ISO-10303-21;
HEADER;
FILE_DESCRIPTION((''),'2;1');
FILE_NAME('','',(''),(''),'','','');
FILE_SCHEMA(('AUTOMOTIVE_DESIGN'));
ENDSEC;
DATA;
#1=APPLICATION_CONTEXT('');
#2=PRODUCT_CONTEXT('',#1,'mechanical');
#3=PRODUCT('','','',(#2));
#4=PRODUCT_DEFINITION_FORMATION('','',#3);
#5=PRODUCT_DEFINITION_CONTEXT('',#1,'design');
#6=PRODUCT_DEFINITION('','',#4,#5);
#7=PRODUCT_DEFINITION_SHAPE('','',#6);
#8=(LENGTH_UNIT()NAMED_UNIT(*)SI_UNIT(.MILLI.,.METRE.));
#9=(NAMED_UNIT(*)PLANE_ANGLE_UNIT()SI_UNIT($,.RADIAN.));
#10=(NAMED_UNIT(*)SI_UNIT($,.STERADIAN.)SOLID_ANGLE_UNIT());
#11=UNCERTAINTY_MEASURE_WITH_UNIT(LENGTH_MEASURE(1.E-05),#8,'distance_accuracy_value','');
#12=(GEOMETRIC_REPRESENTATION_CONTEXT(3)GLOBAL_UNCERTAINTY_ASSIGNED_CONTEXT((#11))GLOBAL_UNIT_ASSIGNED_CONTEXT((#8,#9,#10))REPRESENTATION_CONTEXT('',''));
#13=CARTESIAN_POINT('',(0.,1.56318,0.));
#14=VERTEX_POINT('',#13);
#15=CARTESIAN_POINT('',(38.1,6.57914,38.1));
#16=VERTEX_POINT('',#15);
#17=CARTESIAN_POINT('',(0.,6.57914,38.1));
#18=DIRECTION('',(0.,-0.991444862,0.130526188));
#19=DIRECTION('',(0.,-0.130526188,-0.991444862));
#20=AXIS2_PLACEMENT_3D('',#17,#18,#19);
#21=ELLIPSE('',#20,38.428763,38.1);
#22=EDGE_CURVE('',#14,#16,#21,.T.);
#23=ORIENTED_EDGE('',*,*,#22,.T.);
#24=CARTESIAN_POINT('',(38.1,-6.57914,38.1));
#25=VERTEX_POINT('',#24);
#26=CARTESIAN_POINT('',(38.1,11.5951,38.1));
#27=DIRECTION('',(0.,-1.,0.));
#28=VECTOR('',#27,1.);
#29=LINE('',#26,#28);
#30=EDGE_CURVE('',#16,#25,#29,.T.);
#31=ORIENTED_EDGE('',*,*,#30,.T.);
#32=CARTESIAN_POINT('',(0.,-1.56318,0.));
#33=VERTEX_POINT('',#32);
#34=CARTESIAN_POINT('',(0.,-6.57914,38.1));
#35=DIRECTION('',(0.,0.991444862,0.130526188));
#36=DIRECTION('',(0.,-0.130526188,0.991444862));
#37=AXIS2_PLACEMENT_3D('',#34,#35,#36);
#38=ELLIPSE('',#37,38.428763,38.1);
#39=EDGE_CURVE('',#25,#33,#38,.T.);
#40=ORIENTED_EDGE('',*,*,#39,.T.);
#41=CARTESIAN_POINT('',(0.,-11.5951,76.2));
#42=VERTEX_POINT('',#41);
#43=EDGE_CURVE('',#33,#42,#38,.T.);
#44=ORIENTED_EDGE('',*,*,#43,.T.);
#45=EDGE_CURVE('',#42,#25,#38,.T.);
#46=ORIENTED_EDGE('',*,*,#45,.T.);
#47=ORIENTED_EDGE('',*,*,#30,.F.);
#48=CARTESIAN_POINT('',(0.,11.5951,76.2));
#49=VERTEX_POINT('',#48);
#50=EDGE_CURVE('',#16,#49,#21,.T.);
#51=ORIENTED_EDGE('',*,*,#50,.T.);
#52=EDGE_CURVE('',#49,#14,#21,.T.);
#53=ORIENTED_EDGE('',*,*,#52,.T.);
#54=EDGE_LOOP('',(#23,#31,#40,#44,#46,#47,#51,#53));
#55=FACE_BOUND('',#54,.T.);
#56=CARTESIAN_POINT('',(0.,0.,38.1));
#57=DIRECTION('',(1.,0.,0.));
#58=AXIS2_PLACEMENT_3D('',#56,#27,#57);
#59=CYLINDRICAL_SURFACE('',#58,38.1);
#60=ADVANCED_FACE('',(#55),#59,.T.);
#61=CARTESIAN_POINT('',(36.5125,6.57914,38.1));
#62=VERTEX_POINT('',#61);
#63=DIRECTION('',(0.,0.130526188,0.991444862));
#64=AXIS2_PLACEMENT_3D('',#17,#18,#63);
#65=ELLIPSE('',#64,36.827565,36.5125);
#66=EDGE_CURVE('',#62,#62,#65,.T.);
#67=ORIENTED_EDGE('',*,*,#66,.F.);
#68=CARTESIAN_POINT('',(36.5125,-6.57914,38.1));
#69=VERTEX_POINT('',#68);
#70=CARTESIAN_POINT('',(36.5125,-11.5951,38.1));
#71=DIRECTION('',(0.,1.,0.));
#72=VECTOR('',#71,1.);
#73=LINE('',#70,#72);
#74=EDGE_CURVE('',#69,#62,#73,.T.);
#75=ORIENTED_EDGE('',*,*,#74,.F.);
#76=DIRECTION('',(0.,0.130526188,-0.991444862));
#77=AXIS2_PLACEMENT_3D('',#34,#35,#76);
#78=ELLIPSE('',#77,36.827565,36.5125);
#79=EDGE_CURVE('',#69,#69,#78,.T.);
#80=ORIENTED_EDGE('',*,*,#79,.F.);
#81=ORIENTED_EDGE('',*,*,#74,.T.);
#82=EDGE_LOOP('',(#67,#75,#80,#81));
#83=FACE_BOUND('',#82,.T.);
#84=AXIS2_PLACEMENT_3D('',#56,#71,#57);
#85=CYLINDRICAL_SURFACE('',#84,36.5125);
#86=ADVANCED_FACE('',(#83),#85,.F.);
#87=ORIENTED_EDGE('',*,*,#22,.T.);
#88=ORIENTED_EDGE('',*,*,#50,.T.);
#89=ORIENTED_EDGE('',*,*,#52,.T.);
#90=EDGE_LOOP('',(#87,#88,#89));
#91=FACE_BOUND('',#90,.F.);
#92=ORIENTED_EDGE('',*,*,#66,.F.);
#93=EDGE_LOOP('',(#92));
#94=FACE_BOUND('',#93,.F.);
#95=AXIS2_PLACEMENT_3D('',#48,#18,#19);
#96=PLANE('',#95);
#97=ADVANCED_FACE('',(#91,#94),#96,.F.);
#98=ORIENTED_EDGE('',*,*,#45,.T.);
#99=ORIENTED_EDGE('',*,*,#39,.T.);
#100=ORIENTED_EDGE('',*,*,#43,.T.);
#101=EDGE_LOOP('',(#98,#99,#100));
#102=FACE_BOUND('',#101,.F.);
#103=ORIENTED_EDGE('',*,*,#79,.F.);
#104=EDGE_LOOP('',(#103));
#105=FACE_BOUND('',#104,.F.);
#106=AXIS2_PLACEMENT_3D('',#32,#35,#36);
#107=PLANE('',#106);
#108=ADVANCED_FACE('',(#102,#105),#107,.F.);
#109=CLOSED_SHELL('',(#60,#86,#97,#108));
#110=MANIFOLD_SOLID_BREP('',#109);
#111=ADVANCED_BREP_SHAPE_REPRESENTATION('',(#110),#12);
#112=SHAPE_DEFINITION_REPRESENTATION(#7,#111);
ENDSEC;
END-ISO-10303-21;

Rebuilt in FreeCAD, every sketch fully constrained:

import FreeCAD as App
import Part
import Sketcher

V = App.Vector
Q = App.Units.Quantity

doc = App.newDocument("Part")
body = doc.addObject("PartDesign::Body", "Body")

# Sketch on XZ plane
sketch1 = body.newObject("Sketcher::SketchObject", "Sketch")
sketch1.AttachmentSupport = (doc.getObject("XZ_Plane"), [""])
sketch1.MapMode = "FlatFace"
sketch1.addGeometry(Part.Circle(V(0, 38, 0), V(0, 0, 1), 38), False)
sketch1.addGeometry(Part.Circle(V(0, 38, 0), V(0, 0, 1), 37), False)
sketch1.addConstraint(Sketcher.Constraint("Coincident", 1, 3, 0, 3))
sketch1.addConstraint(Sketcher.Constraint("PointOnObject", 0, 3, -2))
sketch1.addConstraint(Sketcher.Constraint("Diameter", 0, Q("3 in")))
sketch1.addConstraint(Sketcher.Constraint("Diameter", 1, Q("2.875 in")))
sketch1.addConstraint(Sketcher.Constraint("DistanceY", -1, 1, 0, 3, Q("1.5 in")))
pad1 = body.newObject("PartDesign::Pad", "Pad")
pad1.Profile = sketch1
pad1.Length = Q("0.913 in")
pad1.Midplane = True

# Sketch on YZ plane
sketch2 = body.newObject("Sketcher::SketchObject", "Sketch001")
sketch2.AttachmentSupport = (doc.getObject("YZ_Plane"), [""])
sketch2.MapMode = "FlatFace"
sketch2.addGeometry(Part.LineSegment(V(1.6, 0, 0), V(-1.6, 0, 0)), False)
sketch2.addGeometry(Part.LineSegment(V(-1.6, 0, 0), V(-11.6, 76.2, 0)), False)
sketch2.addGeometry(Part.LineSegment(V(-11.6, 76.2, 0), V(-11.6, -5.5, 0)), False)
sketch2.addGeometry(Part.LineSegment(V(-11.6, -5.5, 0), V(11.6, -5.5, 0)), False)
sketch2.addGeometry(Part.LineSegment(V(11.6, -5.5, 0), V(11.6, 76.2, 0)), False)
sketch2.addGeometry(Part.LineSegment(V(11.6, 76.2, 0), V(1.6, 0, 0)), False)
sketch2.addConstraint(Sketcher.Constraint("Coincident", 0, 2, 1, 1))
sketch2.addConstraint(Sketcher.Constraint("Coincident", 1, 2, 2, 1))
sketch2.addConstraint(Sketcher.Constraint("Coincident", 2, 2, 3, 1))
sketch2.addConstraint(Sketcher.Constraint("Coincident", 3, 2, 4, 1))
sketch2.addConstraint(Sketcher.Constraint("Coincident", 4, 2, 5, 1))
sketch2.addConstraint(Sketcher.Constraint("Coincident", 5, 2, 0, 1))
sketch2.addConstraint(Sketcher.Constraint("Horizontal", 0))
sketch2.addConstraint(Sketcher.Constraint("Vertical", 2))
sketch2.addConstraint(Sketcher.Constraint("Horizontal", 3))
sketch2.addConstraint(Sketcher.Constraint("Vertical", 4))
sketch2.addConstraint(Sketcher.Constraint("Symmetric", 0, 2, 5, 2, -1, 1))
sketch2.addConstraint(Sketcher.Constraint("Symmetric", 1, 2, 4, 2, -2))
sketch2.addConstraint(Sketcher.Constraint("DistanceY", -1, 1, 1, 2, Q("3 in")))
sketch2.addConstraint(Sketcher.Constraint("Angle", 1, Q("97.5 deg")))
sketch2.addConstraint(Sketcher.Constraint("DistanceX", 3, 1, 3, 2, Q("0.913 in")))
sketch2.addConstraint(Sketcher.Constraint("DistanceY", 2, 2, 2, 1, Q("81.692948 mm")))
pocket1 = body.newObject("PartDesign::Pocket", "Pocket")
pocket1.Profile = sketch2
pocket1.Length = Q("4 in")
pocket1.Midplane = True

doc.recompute()
